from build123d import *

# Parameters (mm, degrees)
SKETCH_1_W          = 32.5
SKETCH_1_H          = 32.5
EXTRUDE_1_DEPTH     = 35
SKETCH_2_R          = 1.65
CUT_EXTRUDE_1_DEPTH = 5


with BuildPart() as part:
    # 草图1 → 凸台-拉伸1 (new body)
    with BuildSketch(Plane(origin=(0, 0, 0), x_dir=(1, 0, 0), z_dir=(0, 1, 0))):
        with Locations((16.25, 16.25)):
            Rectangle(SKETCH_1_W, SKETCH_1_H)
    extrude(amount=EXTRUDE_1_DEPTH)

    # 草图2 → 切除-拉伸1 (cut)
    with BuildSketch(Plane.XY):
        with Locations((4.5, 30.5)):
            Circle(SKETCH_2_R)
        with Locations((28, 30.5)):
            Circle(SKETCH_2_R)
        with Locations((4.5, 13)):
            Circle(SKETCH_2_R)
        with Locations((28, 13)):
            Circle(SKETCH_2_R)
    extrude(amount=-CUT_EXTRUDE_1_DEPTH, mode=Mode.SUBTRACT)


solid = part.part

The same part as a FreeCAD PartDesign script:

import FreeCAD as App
import Part
import Sketcher
from FreeCAD import Vector
Q = App.Units.Quantity

doc = App.newDocument("Part")
params = doc.addObject("Spreadsheet::Sheet", "Params")
for row, (alias, value) in enumerate([
    ("sketch1_width", "32.5 mm"),
    ("pad1_length", "35 mm"),
    ("sketch2_diameter", "3.3 mm"),
    ("pocket1_length", "5 mm"),
], start=1):
    params.set(f"A{row}", alias)
    params.set(f"B{row}", "=" + value)
    params.setAlias(f"B{row}", alias)

body = doc.addObject("PartDesign::Body", "Body")

# Sketch on XZ plane
sketch1 = doc.addObject("Sketcher::SketchObject", "Sketch")
body.addObject(sketch1)
sketch1.AttachmentSupport = (doc.XZ_Plane, [""])
sketch1.MapMode = "FlatFace"
sketch1.addGeometry([
    Part.LineSegment(Vector(0, -32.5, 0), Vector(0, 0, 0)),
    Part.LineSegment(Vector(0, 0, 0), Vector(32.5, 0, 0)),
    Part.LineSegment(Vector(32.5, 0, 0), Vector(32.5, -32.5, 0)),
    Part.LineSegment(Vector(32.5, -32.5, 0), Vector(0, -32.5, 0)),
], False)
sketch1.addConstraint([
    Sketcher.Constraint("Coincident", 0, 2, 1, 1),
    Sketcher.Constraint("Coincident", 1, 2, 2, 1),
    Sketcher.Constraint("Coincident", 2, 2, 3, 1),
    Sketcher.Constraint("Coincident", 3, 2, 0, 1),
    Sketcher.Constraint("Vertical", 0),
    Sketcher.Constraint("Horizontal", 1),
    Sketcher.Constraint("Vertical", 2),
    Sketcher.Constraint("Horizontal", 3),
    Sketcher.Constraint("Coincident", 0, 2, -1, 1),
    Sketcher.Constraint("Equal", 3, 0),
    Sketcher.Constraint("DistanceX", 1, 1, 1, 2, Q("32.5 mm")),
])
sketch1.setExpression("Constraints[10]", "Params.sketch1_width")
pad1 = doc.addObject("PartDesign::Pad", "Pad")
body.addObject(pad1)
pad1.Profile = sketch1
pad1.setExpression("Length", "Params.pad1_length")
pad1.Reversed = True

# Sketch on XY plane
sketch2 = doc.addObject("Sketcher::SketchObject", "Sketch001")
body.addObject(sketch2)
sketch2.AttachmentSupport = (doc.XY_Plane, [""])
sketch2.MapMode = "FlatFace"
sketch2.addGeometry([
    Part.Circle(Vector(4.5, 30.5, 0), Vector(0, 0, 1), 1.65),
    Part.Circle(Vector(28, 30.5, 0), Vector(0, 0, 1), 1.65),
    Part.Circle(Vector(4.5, 13, 0), Vector(0, 0, 1), 1.65),
    Part.Circle(Vector(28, 13, 0), Vector(0, 0, 1), 1.65),
], False)
sketch2.addConstraint([
    Sketcher.Constraint("Equal", 0, 1),
    Sketcher.Constraint("Equal", 1, 2),
    Sketcher.Constraint("Equal", 2, 3),
    Sketcher.Constraint("Horizontal", 0, 3, 1, 3),
    Sketcher.Constraint("Horizontal", 2, 3, 3, 3),
    Sketcher.Constraint("Vertical", 0, 3, 2, 3),
    Sketcher.Constraint("Vertical", 1, 3, 3, 3),
    Sketcher.Constraint("Diameter", 0, Q("3.3 mm")),
    Sketcher.Constraint("DistanceX", -1, 1, 1, 3, Q("28 mm")),
    Sketcher.Constraint("DistanceY", -1, 1, 2, 3, Q("13 mm")),
    Sketcher.Constraint("DistanceX", -1, 1, 0, 3, Q("4.5 mm")),
    Sketcher.Constraint("DistanceY", -1, 1, 0, 3, Q("30.5 mm")),
])
sketch2.setExpression("Constraints[7]", "Params.sketch2_diameter")
pocket1 = doc.addObject("PartDesign::Pocket", "Pocket")
body.addObject(pocket1)
pocket1.Profile = sketch2
pocket1.setExpression("Length", "Params.pocket1_length")

doc.recompute()
